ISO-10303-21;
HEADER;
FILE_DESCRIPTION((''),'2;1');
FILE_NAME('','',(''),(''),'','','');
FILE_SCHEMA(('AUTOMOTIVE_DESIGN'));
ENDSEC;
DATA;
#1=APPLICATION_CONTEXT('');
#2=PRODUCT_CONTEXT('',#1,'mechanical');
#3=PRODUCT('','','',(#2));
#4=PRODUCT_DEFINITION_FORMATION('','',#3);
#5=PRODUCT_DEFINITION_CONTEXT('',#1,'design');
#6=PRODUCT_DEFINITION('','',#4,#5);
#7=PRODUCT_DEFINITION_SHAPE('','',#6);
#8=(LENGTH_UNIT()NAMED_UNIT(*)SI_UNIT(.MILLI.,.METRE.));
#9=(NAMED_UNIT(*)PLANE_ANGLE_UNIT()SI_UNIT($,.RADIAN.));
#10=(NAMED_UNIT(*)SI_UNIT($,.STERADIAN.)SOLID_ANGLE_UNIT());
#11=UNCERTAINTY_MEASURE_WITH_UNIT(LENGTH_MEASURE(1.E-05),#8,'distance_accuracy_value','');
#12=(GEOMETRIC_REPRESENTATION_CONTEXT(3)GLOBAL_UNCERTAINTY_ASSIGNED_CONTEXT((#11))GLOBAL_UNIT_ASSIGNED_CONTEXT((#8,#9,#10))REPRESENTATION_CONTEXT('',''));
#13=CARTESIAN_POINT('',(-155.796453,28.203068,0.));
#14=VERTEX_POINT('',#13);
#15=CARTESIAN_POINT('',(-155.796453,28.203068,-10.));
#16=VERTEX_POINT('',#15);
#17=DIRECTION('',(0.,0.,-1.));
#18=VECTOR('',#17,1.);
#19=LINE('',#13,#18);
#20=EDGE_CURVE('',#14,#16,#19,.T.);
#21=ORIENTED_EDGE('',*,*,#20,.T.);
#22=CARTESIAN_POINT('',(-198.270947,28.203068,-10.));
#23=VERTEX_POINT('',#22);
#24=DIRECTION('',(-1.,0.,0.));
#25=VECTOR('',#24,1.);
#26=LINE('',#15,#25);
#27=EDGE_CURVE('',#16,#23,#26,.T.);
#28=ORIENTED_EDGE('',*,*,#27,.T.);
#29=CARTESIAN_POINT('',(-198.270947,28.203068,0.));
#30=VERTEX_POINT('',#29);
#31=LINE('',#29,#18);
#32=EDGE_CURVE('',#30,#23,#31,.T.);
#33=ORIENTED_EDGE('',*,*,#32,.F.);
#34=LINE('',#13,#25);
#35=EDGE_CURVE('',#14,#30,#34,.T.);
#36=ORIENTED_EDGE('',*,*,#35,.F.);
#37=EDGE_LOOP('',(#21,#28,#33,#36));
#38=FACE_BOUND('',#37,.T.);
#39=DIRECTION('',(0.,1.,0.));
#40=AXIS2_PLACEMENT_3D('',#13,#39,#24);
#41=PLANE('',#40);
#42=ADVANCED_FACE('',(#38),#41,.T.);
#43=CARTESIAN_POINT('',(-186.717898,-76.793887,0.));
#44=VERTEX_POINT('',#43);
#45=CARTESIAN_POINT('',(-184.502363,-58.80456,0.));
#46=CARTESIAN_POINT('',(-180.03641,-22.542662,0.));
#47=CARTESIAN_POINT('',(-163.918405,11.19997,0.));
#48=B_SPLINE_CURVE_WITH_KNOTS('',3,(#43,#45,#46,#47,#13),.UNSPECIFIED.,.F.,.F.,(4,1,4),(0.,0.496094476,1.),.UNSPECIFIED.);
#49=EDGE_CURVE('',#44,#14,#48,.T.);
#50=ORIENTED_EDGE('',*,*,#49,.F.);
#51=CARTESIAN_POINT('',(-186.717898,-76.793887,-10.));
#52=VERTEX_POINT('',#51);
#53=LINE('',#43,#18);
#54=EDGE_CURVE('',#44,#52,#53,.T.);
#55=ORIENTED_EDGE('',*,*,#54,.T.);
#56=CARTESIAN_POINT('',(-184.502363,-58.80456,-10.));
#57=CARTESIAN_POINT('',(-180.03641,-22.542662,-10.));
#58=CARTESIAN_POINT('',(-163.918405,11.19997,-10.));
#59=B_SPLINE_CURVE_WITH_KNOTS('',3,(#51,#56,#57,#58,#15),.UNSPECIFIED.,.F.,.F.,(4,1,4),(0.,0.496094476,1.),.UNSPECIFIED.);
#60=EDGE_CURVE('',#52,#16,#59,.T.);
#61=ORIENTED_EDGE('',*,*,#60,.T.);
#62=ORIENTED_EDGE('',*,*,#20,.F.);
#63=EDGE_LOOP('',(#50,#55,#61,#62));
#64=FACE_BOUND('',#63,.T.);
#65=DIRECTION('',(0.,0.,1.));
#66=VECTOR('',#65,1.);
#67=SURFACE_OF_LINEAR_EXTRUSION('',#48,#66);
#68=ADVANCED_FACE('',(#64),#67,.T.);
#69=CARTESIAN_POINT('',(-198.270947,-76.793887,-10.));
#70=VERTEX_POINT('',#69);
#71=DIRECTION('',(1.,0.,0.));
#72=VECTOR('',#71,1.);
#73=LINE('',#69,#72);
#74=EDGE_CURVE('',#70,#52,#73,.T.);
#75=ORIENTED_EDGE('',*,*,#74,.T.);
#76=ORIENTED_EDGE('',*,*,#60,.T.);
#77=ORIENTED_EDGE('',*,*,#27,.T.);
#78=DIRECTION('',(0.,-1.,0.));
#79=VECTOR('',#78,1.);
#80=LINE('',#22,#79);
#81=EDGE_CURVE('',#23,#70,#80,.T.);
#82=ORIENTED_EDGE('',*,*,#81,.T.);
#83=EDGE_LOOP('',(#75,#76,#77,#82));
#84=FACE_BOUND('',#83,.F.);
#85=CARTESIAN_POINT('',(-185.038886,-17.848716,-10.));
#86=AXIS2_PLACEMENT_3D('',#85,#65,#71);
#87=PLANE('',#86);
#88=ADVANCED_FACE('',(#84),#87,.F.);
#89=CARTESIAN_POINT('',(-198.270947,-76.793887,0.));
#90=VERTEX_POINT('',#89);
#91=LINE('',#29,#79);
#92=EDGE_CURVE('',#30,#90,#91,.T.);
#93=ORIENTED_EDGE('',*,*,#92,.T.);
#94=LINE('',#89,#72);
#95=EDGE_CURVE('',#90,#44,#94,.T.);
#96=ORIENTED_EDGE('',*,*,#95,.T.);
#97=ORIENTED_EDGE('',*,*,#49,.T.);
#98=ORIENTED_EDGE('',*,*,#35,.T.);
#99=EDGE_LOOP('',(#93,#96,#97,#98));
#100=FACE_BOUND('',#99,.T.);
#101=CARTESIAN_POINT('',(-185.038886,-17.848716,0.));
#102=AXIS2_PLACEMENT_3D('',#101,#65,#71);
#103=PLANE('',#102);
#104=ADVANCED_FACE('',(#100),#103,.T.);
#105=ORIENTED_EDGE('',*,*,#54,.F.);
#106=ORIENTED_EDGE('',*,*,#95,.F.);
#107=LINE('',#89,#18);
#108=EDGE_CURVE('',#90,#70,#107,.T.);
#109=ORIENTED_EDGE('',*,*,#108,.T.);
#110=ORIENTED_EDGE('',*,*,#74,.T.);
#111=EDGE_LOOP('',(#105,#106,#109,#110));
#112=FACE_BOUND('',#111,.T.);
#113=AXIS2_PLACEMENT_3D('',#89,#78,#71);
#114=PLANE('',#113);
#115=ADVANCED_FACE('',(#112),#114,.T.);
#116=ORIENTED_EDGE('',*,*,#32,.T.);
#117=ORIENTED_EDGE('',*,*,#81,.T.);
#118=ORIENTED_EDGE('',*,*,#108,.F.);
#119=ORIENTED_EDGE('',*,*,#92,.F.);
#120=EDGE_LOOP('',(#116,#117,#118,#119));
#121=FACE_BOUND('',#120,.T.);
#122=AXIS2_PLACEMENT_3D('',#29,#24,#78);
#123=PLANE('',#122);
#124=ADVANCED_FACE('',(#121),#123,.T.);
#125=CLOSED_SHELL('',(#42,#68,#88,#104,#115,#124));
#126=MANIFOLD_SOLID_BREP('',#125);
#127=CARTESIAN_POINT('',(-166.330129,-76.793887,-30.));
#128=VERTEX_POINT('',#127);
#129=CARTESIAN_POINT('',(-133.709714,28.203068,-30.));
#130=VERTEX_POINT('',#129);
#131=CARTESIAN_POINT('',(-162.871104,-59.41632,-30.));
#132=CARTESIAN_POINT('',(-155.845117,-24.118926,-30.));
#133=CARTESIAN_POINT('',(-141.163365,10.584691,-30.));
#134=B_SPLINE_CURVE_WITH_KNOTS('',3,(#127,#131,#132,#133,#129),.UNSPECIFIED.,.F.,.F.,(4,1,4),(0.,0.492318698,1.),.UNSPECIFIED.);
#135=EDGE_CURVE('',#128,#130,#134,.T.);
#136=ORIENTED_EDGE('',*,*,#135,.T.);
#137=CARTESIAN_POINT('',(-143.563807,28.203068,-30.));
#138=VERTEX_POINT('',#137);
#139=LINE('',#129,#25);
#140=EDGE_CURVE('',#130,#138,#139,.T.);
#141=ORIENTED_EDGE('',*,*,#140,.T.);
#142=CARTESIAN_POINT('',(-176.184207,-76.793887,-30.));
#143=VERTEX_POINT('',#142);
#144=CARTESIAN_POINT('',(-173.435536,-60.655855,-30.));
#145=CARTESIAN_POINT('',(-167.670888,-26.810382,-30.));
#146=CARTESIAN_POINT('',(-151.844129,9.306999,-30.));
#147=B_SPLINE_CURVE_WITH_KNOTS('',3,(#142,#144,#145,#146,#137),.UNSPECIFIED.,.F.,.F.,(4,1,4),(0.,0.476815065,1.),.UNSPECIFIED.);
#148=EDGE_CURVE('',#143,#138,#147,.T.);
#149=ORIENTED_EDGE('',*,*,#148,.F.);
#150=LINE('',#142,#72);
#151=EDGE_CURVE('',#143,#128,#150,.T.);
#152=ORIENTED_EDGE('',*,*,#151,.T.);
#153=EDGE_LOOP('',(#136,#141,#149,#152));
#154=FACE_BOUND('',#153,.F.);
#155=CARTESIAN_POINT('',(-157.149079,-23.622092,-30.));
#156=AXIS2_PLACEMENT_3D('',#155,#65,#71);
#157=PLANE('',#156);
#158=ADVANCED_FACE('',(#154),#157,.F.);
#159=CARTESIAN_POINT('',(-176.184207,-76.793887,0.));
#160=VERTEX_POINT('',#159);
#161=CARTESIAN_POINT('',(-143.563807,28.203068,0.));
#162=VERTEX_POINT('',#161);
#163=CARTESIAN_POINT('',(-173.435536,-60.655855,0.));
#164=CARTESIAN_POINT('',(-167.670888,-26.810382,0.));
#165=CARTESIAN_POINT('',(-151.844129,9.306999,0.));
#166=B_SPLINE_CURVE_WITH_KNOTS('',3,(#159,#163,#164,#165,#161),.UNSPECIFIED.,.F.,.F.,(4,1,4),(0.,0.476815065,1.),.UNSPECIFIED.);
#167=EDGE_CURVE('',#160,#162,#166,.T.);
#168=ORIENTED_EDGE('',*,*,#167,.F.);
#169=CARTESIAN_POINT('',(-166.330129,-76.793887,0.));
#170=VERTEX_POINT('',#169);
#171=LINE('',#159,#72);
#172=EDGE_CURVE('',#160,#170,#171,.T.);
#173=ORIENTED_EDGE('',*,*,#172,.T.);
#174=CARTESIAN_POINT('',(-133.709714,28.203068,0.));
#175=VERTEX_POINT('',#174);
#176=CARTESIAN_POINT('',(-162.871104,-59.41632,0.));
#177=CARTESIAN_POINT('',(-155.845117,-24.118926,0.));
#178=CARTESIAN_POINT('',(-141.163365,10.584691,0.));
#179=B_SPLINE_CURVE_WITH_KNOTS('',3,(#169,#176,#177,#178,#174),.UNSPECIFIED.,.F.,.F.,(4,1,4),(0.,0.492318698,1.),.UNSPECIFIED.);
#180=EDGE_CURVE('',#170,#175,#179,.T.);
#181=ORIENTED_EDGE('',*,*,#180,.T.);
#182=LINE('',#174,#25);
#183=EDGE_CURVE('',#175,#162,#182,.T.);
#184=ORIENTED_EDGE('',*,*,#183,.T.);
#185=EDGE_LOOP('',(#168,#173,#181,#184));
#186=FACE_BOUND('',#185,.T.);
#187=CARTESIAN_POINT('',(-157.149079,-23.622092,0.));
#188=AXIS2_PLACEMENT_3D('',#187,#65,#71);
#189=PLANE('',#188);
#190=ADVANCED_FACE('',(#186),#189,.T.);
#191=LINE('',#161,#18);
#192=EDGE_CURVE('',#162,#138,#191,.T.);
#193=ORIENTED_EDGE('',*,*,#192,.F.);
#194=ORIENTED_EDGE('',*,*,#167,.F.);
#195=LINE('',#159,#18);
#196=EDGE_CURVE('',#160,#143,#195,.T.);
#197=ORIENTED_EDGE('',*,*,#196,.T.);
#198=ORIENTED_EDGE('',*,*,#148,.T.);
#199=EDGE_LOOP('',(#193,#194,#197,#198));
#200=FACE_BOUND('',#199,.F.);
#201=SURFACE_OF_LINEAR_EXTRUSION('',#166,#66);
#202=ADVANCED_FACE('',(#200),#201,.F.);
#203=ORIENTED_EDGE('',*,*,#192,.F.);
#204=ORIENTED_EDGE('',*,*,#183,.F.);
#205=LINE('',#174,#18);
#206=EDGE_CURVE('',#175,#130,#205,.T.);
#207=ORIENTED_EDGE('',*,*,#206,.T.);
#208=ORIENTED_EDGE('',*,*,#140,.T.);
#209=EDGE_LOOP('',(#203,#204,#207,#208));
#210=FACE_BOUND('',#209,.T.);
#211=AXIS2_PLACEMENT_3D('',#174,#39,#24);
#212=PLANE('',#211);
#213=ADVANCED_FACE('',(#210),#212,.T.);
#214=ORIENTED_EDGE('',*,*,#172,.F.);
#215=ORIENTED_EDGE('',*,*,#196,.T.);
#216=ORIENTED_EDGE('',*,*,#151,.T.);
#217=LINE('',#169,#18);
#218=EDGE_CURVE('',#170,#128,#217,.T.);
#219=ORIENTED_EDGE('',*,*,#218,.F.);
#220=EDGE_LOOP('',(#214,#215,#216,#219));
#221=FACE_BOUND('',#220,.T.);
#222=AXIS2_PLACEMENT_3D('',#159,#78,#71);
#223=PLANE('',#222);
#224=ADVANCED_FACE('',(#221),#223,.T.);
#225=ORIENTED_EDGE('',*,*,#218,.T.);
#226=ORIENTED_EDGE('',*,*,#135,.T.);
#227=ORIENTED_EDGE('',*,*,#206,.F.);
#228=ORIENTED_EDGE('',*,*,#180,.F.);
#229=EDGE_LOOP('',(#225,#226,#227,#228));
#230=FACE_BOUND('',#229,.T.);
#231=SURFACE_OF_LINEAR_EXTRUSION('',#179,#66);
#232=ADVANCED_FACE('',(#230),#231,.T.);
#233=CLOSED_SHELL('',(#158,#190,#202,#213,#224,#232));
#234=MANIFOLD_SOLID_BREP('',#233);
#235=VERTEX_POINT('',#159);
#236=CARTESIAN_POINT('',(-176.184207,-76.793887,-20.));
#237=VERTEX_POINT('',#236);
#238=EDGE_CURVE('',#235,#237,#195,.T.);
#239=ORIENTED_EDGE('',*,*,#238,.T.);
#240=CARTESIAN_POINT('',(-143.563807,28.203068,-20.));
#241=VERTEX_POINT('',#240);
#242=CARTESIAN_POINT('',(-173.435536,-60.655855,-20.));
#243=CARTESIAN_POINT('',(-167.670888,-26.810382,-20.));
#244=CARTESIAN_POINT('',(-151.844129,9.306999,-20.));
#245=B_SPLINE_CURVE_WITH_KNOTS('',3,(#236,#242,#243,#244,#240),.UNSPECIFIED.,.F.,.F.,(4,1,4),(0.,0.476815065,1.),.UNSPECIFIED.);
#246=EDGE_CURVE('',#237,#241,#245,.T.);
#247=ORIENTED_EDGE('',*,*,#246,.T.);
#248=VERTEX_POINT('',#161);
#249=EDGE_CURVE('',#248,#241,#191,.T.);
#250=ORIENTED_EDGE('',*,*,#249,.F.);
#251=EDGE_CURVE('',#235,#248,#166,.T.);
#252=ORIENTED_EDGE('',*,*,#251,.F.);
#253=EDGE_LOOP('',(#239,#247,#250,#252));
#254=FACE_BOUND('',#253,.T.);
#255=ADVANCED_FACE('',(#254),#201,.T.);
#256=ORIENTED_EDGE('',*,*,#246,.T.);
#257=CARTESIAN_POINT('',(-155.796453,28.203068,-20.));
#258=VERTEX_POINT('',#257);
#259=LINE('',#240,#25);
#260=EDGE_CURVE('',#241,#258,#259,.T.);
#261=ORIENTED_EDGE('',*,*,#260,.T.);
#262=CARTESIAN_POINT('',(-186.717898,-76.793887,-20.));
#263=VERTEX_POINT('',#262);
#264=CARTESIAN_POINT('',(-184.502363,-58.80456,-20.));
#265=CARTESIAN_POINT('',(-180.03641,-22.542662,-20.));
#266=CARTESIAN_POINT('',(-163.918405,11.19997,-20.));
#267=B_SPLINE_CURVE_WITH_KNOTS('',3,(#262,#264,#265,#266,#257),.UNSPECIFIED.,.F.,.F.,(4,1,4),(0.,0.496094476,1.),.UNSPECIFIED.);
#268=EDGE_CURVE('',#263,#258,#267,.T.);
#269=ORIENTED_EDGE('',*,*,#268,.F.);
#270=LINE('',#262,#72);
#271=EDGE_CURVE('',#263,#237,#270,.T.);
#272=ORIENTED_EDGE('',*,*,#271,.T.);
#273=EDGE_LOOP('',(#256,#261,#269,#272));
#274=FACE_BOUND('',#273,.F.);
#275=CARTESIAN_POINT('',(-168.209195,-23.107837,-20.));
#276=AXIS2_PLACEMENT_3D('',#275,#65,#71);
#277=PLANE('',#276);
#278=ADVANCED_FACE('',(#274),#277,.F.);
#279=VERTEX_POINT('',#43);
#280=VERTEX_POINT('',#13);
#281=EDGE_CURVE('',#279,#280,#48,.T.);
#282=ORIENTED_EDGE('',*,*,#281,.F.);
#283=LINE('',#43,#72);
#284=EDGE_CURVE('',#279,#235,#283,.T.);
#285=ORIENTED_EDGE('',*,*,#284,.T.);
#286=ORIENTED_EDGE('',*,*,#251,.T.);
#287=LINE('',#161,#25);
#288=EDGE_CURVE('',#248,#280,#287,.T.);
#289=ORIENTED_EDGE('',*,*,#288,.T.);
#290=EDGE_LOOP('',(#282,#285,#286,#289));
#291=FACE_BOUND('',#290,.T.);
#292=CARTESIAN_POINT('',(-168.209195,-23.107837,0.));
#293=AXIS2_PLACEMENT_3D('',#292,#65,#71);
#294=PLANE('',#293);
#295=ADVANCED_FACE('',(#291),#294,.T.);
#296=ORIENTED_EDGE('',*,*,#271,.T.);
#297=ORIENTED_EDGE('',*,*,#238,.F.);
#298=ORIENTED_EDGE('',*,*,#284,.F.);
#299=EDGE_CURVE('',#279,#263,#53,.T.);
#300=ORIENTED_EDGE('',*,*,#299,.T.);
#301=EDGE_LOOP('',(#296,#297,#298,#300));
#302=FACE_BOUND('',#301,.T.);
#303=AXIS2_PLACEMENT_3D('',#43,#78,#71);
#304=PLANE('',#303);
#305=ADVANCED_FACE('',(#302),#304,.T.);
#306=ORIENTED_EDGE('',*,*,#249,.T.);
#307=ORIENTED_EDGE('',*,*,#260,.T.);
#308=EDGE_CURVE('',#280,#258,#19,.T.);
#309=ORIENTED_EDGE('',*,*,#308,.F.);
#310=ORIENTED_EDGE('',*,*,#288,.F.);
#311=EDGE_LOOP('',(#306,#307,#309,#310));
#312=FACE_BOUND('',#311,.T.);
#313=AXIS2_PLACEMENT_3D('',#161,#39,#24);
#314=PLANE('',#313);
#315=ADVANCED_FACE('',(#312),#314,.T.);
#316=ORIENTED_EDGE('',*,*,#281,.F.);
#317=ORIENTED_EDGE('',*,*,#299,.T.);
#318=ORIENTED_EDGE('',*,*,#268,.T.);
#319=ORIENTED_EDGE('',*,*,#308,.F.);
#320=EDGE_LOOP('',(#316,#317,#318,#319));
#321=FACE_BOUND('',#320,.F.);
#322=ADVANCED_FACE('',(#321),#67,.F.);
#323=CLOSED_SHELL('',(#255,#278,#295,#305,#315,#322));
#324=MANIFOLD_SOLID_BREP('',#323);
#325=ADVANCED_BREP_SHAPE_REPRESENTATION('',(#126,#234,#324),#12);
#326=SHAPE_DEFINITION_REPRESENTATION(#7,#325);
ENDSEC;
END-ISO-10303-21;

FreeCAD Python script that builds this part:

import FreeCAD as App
import Part
import Sketcher

V = App.Vector

doc = App.newDocument("Part")
body = doc.addObject("PartDesign::Body", "Body")

# Sketch on XY plane
sketch1 = doc.addObject("Sketcher::SketchObject", "Sketch")
body.addObject(sketch1)
sketch1.AttachmentSupport = (doc.XY_Plane, [""])
sketch1.MapMode = "FlatFace"
sketch1.addGeometry([
    Part.LineSegment(V(-155.796453, 28.203068, 0), V(-198.270947, 28.203068, 0)),
    Part.LineSegment(V(-198.270947, 28.203068, 0), V(-198.270947, -76.793887, 0)),
    Part.LineSegment(V(-198.270947, -76.793887, 0), V(-186.717898, -76.793887, 0)),
    Part.BSplineCurve([V(-186.717898, -76.793887, 0), V(-184.502363, -58.80456, 0), V(-180.03641, -22.542662, 0), V(-163.918405, 11.19997, 0), V(-155.796453, 28.203068, 0)], [4, 1, 4], [0, 0.496094476, 1], False, 3, [1, 1, 1, 1, 1], False),
], False)
sketch1.addConstraint([
    Sketcher.Constraint("Block", 3),
    Sketcher.Constraint("Coincident", 0, 2, 1, 1),
    Sketcher.Constraint("Coincident", 1, 2, 2, 1),
    Sketcher.Constraint("Coincident", 2, 2, 3, 1),
    Sketcher.Constraint("Coincident", 3, 2, 0, 1),
    Sketcher.Constraint("Horizontal", 0),
    Sketcher.Constraint("Vertical", 1),
    Sketcher.Constraint("Horizontal", 2),
    Sketcher.Constraint("DistanceX", 2, 1, 2, 2, 11.553049),
])
pad1 = doc.addObject("PartDesign::Pad", "Pad")
body.addObject(pad1)
pad1.Profile = sketch1
pad1.Length = 10
pad1.Reversed = True
body2 = doc.addObject("PartDesign::Body", "Body001")

# Sketch on XY plane
sketch2 = doc.addObject("Sketcher::SketchObject", "Sketch001")
body2.addObject(sketch2)
sketch2.AttachmentSupport = (doc.getObject("XY_Plane001"), [""])
sketch2.MapMode = "FlatFace"
sketch2.addGeometry([
    Part.LineSegment(V(-143.563807, 28.203068, 0), V(-155.796453, 28.203068, 0)),
    Part.BSplineCurve([V(-186.717898, -76.793887, 0), V(-184.502363, -58.80456, 0), V(-180.03641, -22.542662, 0), V(-163.918405, 11.19997, 0), V(-155.796453, 28.203068, 0)], [4, 1, 4], [0, 0.496094476, 1], False, 3, [1, 1, 1, 1, 1], False),
    Part.LineSegment(V(-186.717898, -76.793887, 0), V(-176.184207, -76.793887, 0)),
    Part.BSplineCurve([V(-176.184207, -76.793887, 0), V(-173.435536, -60.655855, 0), V(-167.670888, -26.810382, 0), V(-151.844129, 9.306999, 0), V(-143.563807, 28.203068, 0)], [4, 1, 4], [0, 0.476815065, 1], False, 3, [1, 1, 1, 1, 1], False),
], False)
sketch2.addConstraint([
    Sketcher.Constraint("Block", 1),
    Sketcher.Constraint("Block", 3),
    Sketcher.Constraint("Coincident", 0, 2, 1, 2),
    Sketcher.Constraint("Coincident", 1, 1, 2, 1),
    Sketcher.Constraint("Coincident", 2, 2, 3, 1),
    Sketcher.Constraint("Coincident", 3, 2, 0, 1),
])
pad2 = doc.addObject("PartDesign::Pad", "Pad001")
body2.addObject(pad2)
pad2.Profile = sketch2
pad2.Length = 20
pad2.Reversed = True
body3 = doc.addObject("PartDesign::Body", "Body002")

# Sketch on XY plane
sketch3 = doc.addObject("Sketcher::SketchObject", "Sketch002")
body3.addObject(sketch3)
sketch3.AttachmentSupport = (doc.getObject("XY_Plane002"), [""])
sketch3.MapMode = "FlatFace"
sketch3.addGeometry([
    Part.LineSegment(V(-133.709714, 28.203068, 0), V(-143.563807, 28.203068, 0)),
    Part.BSplineCurve([V(-176.184207, -76.793887, 0), V(-173.435536, -60.655855, 0), V(-167.670888, -26.810382, 0), V(-151.844129, 9.306999, 0), V(-143.563807, 28.203068, 0)], [4, 1, 4], [0, 0.476815065, 1], False, 3, [1, 1, 1, 1, 1], False),
    Part.LineSegment(V(-176.184207, -76.793887, 0), V(-166.330129, -76.793887, 0)),
    Part.BSplineCurve([V(-166.330129, -76.793887, 0), V(-162.871104, -59.41632, 0), V(-155.845117, -24.118926, 0), V(-141.163365, 10.584691, 0), V(-133.709714, 28.203068, 0)], [4, 1, 4], [0, 0.492318698, 1], False, 3, [1, 1, 1, 1, 1], False),
], False)
sketch3.addConstraint([
    Sketcher.Constraint("Block", 1),
    Sketcher.Constraint("Block", 3),
    Sketcher.Constraint("Coincident", 0, 2, 1, 2),
    Sketcher.Constraint("Coincident", 1, 1, 2, 1),
    Sketcher.Constraint("Coincident", 2, 2, 3, 1),
    Sketcher.Constraint("Coincident", 3, 2, 0, 1),
])
pad3 = doc.addObject("PartDesign::Pad", "Pad002")
body3.addObject(pad3)
pad3.Profile = sketch3
pad3.Length = 30
pad3.Reversed = True

doc.recompute()
